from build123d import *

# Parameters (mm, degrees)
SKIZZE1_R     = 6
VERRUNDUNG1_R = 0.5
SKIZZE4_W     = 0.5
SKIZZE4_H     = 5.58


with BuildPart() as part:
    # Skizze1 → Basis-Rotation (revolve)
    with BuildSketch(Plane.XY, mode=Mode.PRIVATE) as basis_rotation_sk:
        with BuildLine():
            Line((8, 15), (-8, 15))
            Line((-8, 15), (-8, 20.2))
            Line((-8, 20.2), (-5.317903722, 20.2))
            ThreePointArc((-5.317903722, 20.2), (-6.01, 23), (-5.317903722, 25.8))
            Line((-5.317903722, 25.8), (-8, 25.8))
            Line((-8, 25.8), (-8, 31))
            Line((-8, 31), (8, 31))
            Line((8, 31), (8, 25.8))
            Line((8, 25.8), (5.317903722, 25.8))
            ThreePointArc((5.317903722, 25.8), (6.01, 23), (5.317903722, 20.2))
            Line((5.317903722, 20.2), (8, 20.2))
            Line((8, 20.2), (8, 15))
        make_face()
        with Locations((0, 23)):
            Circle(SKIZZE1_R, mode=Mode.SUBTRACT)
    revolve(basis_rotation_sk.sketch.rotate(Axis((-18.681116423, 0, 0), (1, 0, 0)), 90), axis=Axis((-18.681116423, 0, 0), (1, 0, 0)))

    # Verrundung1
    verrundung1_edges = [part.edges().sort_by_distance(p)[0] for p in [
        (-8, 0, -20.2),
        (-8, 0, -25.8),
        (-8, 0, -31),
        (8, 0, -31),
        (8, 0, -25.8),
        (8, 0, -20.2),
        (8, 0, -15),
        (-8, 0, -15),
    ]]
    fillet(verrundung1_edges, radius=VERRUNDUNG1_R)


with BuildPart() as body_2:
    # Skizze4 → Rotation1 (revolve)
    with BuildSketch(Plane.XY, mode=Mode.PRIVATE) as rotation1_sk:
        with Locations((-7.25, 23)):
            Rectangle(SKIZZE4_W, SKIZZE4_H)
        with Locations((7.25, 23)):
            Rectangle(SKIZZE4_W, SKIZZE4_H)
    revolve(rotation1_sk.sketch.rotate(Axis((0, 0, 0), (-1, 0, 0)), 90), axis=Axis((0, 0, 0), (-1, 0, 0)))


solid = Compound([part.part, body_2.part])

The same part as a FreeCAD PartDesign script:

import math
import FreeCAD as App
import Part
import Sketcher

V = App.Vector
Q = App.Units.Quantity


def edges_at(feature, points):
    """Names of the edges that pass closest to the given points."""
    edges = feature.Shape.Edges
    near = lambda p: min(range(len(edges)), key=lambda i: edges[i].distToShape(Part.Vertex(*p))[0])
    return sorted({f"Edge{near(p) + 1}" for p in points})

doc = App.newDocument("Part")
body = doc.addObject("PartDesign::Body", "Body")

# Sketch on XY plane
sketch1 = body.newObject("Sketcher::SketchObject", "Sketch")
sketch1.AttachmentSupport = (doc.getObject("XY_Plane"), [""])
sketch1.MapMode = "FlatFace"
sketch1.addGeometry(Part.LineSegment(V(-8, 15, 0), V(8, 15, 0)), False)
sketch1.addGeometry(Part.LineSegment(V(8, 15, 0), V(8, 20.2, 0)), False)
sketch1.addGeometry(Part.LineSegment(V(8, 20.2, 0), V(5.3, 20.2, 0)), False)
sketch1.addGeometry(Part.ArcOfCircle(Part.Circle(V(0, 23, 0), V(0, 0, 1), 6), math.radians(-28), math.radians(28)), False)
sketch1.addGeometry(Part.LineSegment(V(5.3, 25.8, 0), V(8, 25.8, 0)), False)
sketch1.addGeometry(Part.LineSegment(V(8, 25.8, 0), V(8, 31, 0)), False)
sketch1.addGeometry(Part.LineSegment(V(8, 31, 0), V(-8, 31, 0)), False)
sketch1.addGeometry(Part.LineSegment(V(-8, 31, 0), V(-8, 25.8, 0)), False)
sketch1.addGeometry(Part.LineSegment(V(-8, 25.8, 0), V(-5.3, 25.8, 0)), False)
sketch1.addGeometry(Part.ArcOfCircle(Part.Circle(V(0, 23, 0), V(0, 0, 1), 6), math.radians(152), math.radians(208)), False)
sketch1.addGeometry(Part.LineSegment(V(-5.3, 20.2, 0), V(-8, 20.2, 0)), False)
sketch1.addGeometry(Part.LineSegment(V(-8, 20.2, 0), V(-8, 15, 0)), False)
sketch1.addGeometry(Part.Circle(V(0, 23, 0), V(0, 0, 1), 6), False)
sketch1.addConstraint(Sketcher.Constraint("Coincident", 0, 2, 1, 1))
sketch1.addConstraint(Sketcher.Constraint("Coincident", 1, 2, 2, 1))
sketch1.addConstraint(Sketcher.Constraint("Coincident", 2, 2, 3, 1))
sketch1.addConstraint(Sketcher.Constraint("Coincident", 3, 2, 4, 1))
sketch1.addConstraint(Sketcher.Constraint("Coincident", 4, 2, 5, 1))
sketch1.addConstraint(Sketcher.Constraint("Coincident", 5, 2, 6, 1))
sketch1.addConstraint(Sketcher.Constraint("Coincident", 6, 2, 7, 1))
sketch1.addConstraint(Sketcher.Constraint("Coincident", 7, 2, 8, 1))
sketch1.addConstraint(Sketcher.Constraint("Coincident", 8, 2, 9, 1))
sketch1.addConstraint(Sketcher.Constraint("Coincident", 9, 2, 10, 1))
sketch1.addConstraint(Sketcher.Constraint("Coincident", 10, 2, 11, 1))
sketch1.addConstraint(Sketcher.Constraint("Coincident", 11, 2, 0, 1))
sketch1.addConstraint(Sketcher.Constraint("Horizontal", 0))
sketch1.addConstraint(Sketcher.Constraint("Vertical", 1))
sketch1.addConstraint(Sketcher.Constraint("Horizontal", 2))
sketch1.addConstraint(Sketcher.Constraint("Horizontal", 4))
sketch1.addConstraint(Sketcher.Constraint("Vertical", 5))
sketch1.addConstraint(Sketcher.Constraint("Horizontal", 6))
sketch1.addConstraint(Sketcher.Constraint("Vertical", 7))
sketch1.addConstraint(Sketcher.Constraint("Horizontal", 8))
sketch1.addConstraint(Sketcher.Constraint("Horizontal", 10))
sketch1.addConstraint(Sketcher.Constraint("Vertical", 11))
sketch1.addConstraint(Sketcher.Constraint("Coincident", 9, 3, 3, 3))
sketch1.addConstraint(Sketcher.Constraint("Coincident", 12, 3, 3, 3))
sketch1.addConstraint(Sketcher.Constraint("Equal", 3, 9))
sketch1.addConstraint(Sketcher.Constraint("Symmetric", 4, 2, 7, 2, -2))
sketch1.addConstraint(Sketcher.Constraint("Symmetric", 2, 2, 9, 2, -2))
sketch1.addConstraint(Sketcher.Constraint("Vertical", 2, 2, 3, 2))
sketch1.addConstraint(Sketcher.Constraint("Vertical", 1, 2, 4, 2))
sketch1.addConstraint(Sketcher.Constraint("Vertical", 7, 2, 10, 2))
sketch1.addConstraint(Sketcher.Constraint("Equal", 1, 5))
sketch1.addConstraint(Sketcher.Constraint("Diameter", 12, Q("12 mm")))
sketch1.addConstraint(Sketcher.Constraint("DistanceX", 0, 1, 0, 2, Q("16 mm")))
sketch1.addConstraint(Sketcher.Constraint("Radius", 3, Q("6.01 mm")))
sketch1.addConstraint(Sketcher.Constraint("DistanceY", 1, 1, 1, 2, Q("5.2 mm")))
sketch1.addConstraint(Sketcher.Constraint("DistanceY", -1, 1, 3, 3, Q("23 mm")))
sketch1.addConstraint(Sketcher.Constraint("DistanceY", -1, 1, 0, 2, Q("15 mm")))
revolution = body.newObject("PartDesign::Revolution", "Revolution")
revolution.Profile = sketch1
revolution.ReferenceAxis = (sketch1, ["H_Axis"])
revolution.Angle = 360
doc.recompute()

fillet = body.newObject("PartDesign::Fillet", "Fillet")
fillet.Base = (revolution, edges_at(revolution, [
    (-8, 0, -20.2),
    (-8, 0, -25.8),
    (-8, 0, -31),
    (8, 0, -31),
    (8, 0, -25.8),
    (8, 0, -20.2),
    (8, 0, -15),
    (-8, 0, -15),
]))
fillet.Radius = 0.5
body2 = doc.addObject("PartDesign::Body", "Body001")
body2.AllowCompound = True

# Sketch on XY plane
sketch2 = body2.newObject("Sketcher::SketchObject", "Sketch001")
sketch2.AttachmentSupport = (doc.getObject("XY_Plane001"), [""])
sketch2.MapMode = "FlatFace"
sketch2.addGeometry(Part.LineSegment(V(-7.5, 25.8, 0), V(-7.5, 20.2, 0)), False)
sketch2.addGeometry(Part.LineSegment(V(-7.5, 20.2, 0), V(-7, 20.2, 0)), False)
sketch2.addGeometry(Part.LineSegment(V(-7, 20.2, 0), V(-7, 25.8, 0)), False)
sketch2.addGeometry(Part.LineSegment(V(-7, 25.8, 0), V(-7.5, 25.8, 0)), False)
sketch2.addGeometry(Part.LineSegment(V(7, 25.8, 0), V(7, 20.2, 0)), False)
sketch2.addGeometry(Part.LineSegment(V(7, 20.2, 0), V(7.5, 20.2, 0)), False)
sketch2.addGeometry(Part.LineSegment(V(7.5, 20.2, 0), V(7.5, 25.8, 0)), False)
sketch2.addGeometry(Part.LineSegment(V(7.5, 25.8, 0), V(7, 25.8, 0)), False)
sketch2.addConstraint(Sketcher.Constraint("Coincident", 0, 2, 1, 1))
sketch2.addConstraint(Sketcher.Constraint("Coincident", 1, 2, 2, 1))
sketch2.addConstraint(Sketcher.Constraint("Coincident", 2, 2, 3, 1))
sketch2.addConstraint(Sketcher.Constraint("Coincident", 3, 2, 0, 1))
sketch2.addConstraint(Sketcher.Constraint("Coincident", 4, 2, 5, 1))
sketch2.addConstraint(Sketcher.Constraint("Coincident", 5, 2, 6, 1))
sketch2.addConstraint(Sketcher.Constraint("Coincident", 6, 2, 7, 1))
sketch2.addConstraint(Sketcher.Constraint("Coincident", 7, 2, 4, 1))
sketch2.addConstraint(Sketcher.Constraint("Vertical", 0))
sketch2.addConstraint(Sketcher.Constraint("Horizontal", 1))
sketch2.addConstraint(Sketcher.Constraint("Vertical", 2))
sketch2.addConstraint(Sketcher.Constraint("Horizontal", 3))
sketch2.addConstraint(Sketcher.Constraint("Vertical", 4))
sketch2.addConstraint(Sketcher.Constraint("Horizontal", 5))
sketch2.addConstraint(Sketcher.Constraint("Vertical", 6))
sketch2.addConstraint(Sketcher.Constraint("Horizontal", 7))
sketch2.addConstraint(Sketcher.Constraint("Symmetric", 1, 2, 4, 2, -2))
sketch2.addConstraint(Sketcher.Constraint("Symmetric", 3, 2, 6, 2, -2))
sketch2.addConstraint(Sketcher.Constraint("DistanceX", 1, 1, 1, 2, Q("0.5 mm")))
sketch2.addConstraint(Sketcher.Constraint("DistanceX", 1, 2, -1, 1, Q("7 mm")))
sketch2.addConstraint(Sketcher.Constraint("DistanceY", 0, 2, 0, 1, Q("5.58 mm")))
sketch2.addConstraint(Sketcher.Constraint("DistanceY", -1, 1, 0, 2, Q("20.21 mm")))
revolution2 = body2.newObject("PartDesign::Revolution", "Revolution001")
revolution2.Profile = sketch2
revolution2.ReferenceAxis = (sketch2, ["H_Axis"])
revolution2.Angle = 360

doc.recompute()
